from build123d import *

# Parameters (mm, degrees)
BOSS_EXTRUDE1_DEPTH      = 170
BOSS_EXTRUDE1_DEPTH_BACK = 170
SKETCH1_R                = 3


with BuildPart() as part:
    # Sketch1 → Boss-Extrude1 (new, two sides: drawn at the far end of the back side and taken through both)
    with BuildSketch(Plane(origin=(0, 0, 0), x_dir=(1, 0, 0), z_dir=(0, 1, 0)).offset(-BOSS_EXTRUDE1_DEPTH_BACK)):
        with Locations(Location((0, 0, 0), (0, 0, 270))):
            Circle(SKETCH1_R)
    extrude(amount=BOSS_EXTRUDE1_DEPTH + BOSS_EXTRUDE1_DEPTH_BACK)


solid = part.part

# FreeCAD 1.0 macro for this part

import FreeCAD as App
import Part
import Sketcher

doc = App.newDocument("Part")
body = doc.addObject("PartDesign::Body", "Body")

# Sketch on XZ plane
sketch1 = doc.addObject("Sketcher::SketchObject", "Sketch")
body.addObject(sketch1)
sketch1.AttachmentSupport = (doc.XZ_Plane, [""])
sketch1.MapMode = "FlatFace"
sketch1.addGeometry(Part.Circle(App.Vector(0, 0, 0), App.Vector(0, 0, 1), 3), False)
sketch1.addConstraint(Sketcher.Constraint("Coincident", 0, 3, -1, 1))
sketch1.addConstraint(Sketcher.Constraint("Diameter", 0, 6.0))
pad1 = doc.addObject("PartDesign::Pad", "Pad")
body.addObject(pad1)
pad1.Profile = sketch1
pad1.Type = "TwoLengths"
pad1.Length = 170
pad1.Length2 = 170
pad1.Reversed = True

doc.recompute()
